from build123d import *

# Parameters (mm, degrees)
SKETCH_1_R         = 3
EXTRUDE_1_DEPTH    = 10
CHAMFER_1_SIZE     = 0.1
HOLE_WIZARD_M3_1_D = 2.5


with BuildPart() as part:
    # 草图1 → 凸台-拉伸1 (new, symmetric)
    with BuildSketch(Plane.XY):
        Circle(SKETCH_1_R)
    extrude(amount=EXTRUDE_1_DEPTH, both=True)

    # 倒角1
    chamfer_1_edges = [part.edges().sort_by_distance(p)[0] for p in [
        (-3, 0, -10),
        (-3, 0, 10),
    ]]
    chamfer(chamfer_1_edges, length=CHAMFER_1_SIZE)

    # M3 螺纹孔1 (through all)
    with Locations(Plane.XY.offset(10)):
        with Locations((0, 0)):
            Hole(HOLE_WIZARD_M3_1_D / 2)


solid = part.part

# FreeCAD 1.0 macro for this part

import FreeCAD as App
import Part
import Sketcher


def edges_at(feature, points):
    """Names of the edges that pass closest to the given points."""
    edges = feature.Shape.Edges
    near = lambda p: min(range(len(edges)), key=lambda i: edges[i].distToShape(Part.Vertex(*p))[0])
    return sorted({f"Edge{near(p) + 1}" for p in points})

doc = App.newDocument("Part")
body = doc.addObject("PartDesign::Body", "Body")

sketch1 = body.newObject("Sketcher::SketchObject", "Sketch")
sketch1.AttachmentSupport = (doc.getObject("XY_Plane"), [""])
sketch1.MapMode = "FlatFace"
sketch1.addGeometry(Part.Circle(App.Vector(0, 0, 0), App.Vector(0, 0, 1), 3), False)
sketch1.addConstraint(Sketcher.Constraint("Coincident", 0, 3, -1, 1))
sketch1.addConstraint(Sketcher.Constraint("Diameter", 0, 6.0))
pad1 = body.newObject("PartDesign::Pad", "Pad")
pad1.Profile = sketch1
pad1.Length = 20
pad1.Midplane = True
doc.recompute()

chamfer = body.newObject("PartDesign::Chamfer", "Chamfer")
chamfer.Base = (pad1, edges_at(pad1, [(-3, 0, -10), (-3, 0, 10)]))
chamfer.Size = 0.1

sketch2 = body.newObject("Sketcher::SketchObject", "Sketch001")
sketch2.AttachmentSupport = (doc.getObject("XY_Plane"), [""])
sketch2.MapMode = "FlatFace"
sketch2.AttachmentOffset = App.Placement(App.Vector(0, 0, 10), App.Rotation())
sketch2.addGeometry(Part.Circle(App.Vector(0, 0, 0), App.Vector(0, 0, 1), 1.2), False)
sketch2.addConstraint(Sketcher.Constraint("Coincident", 0, 3, -1, 1))
sketch2.addConstraint(Sketcher.Constraint("Diameter", 0, 2.5))
doc.recompute()
hole = body.newObject("PartDesign::Hole", "Hole")
hole.Profile = sketch2
hole.ThreadType = "None"
hole.Diameter = 2.5
hole.DepthType = "ThroughAll"

doc.recompute()
